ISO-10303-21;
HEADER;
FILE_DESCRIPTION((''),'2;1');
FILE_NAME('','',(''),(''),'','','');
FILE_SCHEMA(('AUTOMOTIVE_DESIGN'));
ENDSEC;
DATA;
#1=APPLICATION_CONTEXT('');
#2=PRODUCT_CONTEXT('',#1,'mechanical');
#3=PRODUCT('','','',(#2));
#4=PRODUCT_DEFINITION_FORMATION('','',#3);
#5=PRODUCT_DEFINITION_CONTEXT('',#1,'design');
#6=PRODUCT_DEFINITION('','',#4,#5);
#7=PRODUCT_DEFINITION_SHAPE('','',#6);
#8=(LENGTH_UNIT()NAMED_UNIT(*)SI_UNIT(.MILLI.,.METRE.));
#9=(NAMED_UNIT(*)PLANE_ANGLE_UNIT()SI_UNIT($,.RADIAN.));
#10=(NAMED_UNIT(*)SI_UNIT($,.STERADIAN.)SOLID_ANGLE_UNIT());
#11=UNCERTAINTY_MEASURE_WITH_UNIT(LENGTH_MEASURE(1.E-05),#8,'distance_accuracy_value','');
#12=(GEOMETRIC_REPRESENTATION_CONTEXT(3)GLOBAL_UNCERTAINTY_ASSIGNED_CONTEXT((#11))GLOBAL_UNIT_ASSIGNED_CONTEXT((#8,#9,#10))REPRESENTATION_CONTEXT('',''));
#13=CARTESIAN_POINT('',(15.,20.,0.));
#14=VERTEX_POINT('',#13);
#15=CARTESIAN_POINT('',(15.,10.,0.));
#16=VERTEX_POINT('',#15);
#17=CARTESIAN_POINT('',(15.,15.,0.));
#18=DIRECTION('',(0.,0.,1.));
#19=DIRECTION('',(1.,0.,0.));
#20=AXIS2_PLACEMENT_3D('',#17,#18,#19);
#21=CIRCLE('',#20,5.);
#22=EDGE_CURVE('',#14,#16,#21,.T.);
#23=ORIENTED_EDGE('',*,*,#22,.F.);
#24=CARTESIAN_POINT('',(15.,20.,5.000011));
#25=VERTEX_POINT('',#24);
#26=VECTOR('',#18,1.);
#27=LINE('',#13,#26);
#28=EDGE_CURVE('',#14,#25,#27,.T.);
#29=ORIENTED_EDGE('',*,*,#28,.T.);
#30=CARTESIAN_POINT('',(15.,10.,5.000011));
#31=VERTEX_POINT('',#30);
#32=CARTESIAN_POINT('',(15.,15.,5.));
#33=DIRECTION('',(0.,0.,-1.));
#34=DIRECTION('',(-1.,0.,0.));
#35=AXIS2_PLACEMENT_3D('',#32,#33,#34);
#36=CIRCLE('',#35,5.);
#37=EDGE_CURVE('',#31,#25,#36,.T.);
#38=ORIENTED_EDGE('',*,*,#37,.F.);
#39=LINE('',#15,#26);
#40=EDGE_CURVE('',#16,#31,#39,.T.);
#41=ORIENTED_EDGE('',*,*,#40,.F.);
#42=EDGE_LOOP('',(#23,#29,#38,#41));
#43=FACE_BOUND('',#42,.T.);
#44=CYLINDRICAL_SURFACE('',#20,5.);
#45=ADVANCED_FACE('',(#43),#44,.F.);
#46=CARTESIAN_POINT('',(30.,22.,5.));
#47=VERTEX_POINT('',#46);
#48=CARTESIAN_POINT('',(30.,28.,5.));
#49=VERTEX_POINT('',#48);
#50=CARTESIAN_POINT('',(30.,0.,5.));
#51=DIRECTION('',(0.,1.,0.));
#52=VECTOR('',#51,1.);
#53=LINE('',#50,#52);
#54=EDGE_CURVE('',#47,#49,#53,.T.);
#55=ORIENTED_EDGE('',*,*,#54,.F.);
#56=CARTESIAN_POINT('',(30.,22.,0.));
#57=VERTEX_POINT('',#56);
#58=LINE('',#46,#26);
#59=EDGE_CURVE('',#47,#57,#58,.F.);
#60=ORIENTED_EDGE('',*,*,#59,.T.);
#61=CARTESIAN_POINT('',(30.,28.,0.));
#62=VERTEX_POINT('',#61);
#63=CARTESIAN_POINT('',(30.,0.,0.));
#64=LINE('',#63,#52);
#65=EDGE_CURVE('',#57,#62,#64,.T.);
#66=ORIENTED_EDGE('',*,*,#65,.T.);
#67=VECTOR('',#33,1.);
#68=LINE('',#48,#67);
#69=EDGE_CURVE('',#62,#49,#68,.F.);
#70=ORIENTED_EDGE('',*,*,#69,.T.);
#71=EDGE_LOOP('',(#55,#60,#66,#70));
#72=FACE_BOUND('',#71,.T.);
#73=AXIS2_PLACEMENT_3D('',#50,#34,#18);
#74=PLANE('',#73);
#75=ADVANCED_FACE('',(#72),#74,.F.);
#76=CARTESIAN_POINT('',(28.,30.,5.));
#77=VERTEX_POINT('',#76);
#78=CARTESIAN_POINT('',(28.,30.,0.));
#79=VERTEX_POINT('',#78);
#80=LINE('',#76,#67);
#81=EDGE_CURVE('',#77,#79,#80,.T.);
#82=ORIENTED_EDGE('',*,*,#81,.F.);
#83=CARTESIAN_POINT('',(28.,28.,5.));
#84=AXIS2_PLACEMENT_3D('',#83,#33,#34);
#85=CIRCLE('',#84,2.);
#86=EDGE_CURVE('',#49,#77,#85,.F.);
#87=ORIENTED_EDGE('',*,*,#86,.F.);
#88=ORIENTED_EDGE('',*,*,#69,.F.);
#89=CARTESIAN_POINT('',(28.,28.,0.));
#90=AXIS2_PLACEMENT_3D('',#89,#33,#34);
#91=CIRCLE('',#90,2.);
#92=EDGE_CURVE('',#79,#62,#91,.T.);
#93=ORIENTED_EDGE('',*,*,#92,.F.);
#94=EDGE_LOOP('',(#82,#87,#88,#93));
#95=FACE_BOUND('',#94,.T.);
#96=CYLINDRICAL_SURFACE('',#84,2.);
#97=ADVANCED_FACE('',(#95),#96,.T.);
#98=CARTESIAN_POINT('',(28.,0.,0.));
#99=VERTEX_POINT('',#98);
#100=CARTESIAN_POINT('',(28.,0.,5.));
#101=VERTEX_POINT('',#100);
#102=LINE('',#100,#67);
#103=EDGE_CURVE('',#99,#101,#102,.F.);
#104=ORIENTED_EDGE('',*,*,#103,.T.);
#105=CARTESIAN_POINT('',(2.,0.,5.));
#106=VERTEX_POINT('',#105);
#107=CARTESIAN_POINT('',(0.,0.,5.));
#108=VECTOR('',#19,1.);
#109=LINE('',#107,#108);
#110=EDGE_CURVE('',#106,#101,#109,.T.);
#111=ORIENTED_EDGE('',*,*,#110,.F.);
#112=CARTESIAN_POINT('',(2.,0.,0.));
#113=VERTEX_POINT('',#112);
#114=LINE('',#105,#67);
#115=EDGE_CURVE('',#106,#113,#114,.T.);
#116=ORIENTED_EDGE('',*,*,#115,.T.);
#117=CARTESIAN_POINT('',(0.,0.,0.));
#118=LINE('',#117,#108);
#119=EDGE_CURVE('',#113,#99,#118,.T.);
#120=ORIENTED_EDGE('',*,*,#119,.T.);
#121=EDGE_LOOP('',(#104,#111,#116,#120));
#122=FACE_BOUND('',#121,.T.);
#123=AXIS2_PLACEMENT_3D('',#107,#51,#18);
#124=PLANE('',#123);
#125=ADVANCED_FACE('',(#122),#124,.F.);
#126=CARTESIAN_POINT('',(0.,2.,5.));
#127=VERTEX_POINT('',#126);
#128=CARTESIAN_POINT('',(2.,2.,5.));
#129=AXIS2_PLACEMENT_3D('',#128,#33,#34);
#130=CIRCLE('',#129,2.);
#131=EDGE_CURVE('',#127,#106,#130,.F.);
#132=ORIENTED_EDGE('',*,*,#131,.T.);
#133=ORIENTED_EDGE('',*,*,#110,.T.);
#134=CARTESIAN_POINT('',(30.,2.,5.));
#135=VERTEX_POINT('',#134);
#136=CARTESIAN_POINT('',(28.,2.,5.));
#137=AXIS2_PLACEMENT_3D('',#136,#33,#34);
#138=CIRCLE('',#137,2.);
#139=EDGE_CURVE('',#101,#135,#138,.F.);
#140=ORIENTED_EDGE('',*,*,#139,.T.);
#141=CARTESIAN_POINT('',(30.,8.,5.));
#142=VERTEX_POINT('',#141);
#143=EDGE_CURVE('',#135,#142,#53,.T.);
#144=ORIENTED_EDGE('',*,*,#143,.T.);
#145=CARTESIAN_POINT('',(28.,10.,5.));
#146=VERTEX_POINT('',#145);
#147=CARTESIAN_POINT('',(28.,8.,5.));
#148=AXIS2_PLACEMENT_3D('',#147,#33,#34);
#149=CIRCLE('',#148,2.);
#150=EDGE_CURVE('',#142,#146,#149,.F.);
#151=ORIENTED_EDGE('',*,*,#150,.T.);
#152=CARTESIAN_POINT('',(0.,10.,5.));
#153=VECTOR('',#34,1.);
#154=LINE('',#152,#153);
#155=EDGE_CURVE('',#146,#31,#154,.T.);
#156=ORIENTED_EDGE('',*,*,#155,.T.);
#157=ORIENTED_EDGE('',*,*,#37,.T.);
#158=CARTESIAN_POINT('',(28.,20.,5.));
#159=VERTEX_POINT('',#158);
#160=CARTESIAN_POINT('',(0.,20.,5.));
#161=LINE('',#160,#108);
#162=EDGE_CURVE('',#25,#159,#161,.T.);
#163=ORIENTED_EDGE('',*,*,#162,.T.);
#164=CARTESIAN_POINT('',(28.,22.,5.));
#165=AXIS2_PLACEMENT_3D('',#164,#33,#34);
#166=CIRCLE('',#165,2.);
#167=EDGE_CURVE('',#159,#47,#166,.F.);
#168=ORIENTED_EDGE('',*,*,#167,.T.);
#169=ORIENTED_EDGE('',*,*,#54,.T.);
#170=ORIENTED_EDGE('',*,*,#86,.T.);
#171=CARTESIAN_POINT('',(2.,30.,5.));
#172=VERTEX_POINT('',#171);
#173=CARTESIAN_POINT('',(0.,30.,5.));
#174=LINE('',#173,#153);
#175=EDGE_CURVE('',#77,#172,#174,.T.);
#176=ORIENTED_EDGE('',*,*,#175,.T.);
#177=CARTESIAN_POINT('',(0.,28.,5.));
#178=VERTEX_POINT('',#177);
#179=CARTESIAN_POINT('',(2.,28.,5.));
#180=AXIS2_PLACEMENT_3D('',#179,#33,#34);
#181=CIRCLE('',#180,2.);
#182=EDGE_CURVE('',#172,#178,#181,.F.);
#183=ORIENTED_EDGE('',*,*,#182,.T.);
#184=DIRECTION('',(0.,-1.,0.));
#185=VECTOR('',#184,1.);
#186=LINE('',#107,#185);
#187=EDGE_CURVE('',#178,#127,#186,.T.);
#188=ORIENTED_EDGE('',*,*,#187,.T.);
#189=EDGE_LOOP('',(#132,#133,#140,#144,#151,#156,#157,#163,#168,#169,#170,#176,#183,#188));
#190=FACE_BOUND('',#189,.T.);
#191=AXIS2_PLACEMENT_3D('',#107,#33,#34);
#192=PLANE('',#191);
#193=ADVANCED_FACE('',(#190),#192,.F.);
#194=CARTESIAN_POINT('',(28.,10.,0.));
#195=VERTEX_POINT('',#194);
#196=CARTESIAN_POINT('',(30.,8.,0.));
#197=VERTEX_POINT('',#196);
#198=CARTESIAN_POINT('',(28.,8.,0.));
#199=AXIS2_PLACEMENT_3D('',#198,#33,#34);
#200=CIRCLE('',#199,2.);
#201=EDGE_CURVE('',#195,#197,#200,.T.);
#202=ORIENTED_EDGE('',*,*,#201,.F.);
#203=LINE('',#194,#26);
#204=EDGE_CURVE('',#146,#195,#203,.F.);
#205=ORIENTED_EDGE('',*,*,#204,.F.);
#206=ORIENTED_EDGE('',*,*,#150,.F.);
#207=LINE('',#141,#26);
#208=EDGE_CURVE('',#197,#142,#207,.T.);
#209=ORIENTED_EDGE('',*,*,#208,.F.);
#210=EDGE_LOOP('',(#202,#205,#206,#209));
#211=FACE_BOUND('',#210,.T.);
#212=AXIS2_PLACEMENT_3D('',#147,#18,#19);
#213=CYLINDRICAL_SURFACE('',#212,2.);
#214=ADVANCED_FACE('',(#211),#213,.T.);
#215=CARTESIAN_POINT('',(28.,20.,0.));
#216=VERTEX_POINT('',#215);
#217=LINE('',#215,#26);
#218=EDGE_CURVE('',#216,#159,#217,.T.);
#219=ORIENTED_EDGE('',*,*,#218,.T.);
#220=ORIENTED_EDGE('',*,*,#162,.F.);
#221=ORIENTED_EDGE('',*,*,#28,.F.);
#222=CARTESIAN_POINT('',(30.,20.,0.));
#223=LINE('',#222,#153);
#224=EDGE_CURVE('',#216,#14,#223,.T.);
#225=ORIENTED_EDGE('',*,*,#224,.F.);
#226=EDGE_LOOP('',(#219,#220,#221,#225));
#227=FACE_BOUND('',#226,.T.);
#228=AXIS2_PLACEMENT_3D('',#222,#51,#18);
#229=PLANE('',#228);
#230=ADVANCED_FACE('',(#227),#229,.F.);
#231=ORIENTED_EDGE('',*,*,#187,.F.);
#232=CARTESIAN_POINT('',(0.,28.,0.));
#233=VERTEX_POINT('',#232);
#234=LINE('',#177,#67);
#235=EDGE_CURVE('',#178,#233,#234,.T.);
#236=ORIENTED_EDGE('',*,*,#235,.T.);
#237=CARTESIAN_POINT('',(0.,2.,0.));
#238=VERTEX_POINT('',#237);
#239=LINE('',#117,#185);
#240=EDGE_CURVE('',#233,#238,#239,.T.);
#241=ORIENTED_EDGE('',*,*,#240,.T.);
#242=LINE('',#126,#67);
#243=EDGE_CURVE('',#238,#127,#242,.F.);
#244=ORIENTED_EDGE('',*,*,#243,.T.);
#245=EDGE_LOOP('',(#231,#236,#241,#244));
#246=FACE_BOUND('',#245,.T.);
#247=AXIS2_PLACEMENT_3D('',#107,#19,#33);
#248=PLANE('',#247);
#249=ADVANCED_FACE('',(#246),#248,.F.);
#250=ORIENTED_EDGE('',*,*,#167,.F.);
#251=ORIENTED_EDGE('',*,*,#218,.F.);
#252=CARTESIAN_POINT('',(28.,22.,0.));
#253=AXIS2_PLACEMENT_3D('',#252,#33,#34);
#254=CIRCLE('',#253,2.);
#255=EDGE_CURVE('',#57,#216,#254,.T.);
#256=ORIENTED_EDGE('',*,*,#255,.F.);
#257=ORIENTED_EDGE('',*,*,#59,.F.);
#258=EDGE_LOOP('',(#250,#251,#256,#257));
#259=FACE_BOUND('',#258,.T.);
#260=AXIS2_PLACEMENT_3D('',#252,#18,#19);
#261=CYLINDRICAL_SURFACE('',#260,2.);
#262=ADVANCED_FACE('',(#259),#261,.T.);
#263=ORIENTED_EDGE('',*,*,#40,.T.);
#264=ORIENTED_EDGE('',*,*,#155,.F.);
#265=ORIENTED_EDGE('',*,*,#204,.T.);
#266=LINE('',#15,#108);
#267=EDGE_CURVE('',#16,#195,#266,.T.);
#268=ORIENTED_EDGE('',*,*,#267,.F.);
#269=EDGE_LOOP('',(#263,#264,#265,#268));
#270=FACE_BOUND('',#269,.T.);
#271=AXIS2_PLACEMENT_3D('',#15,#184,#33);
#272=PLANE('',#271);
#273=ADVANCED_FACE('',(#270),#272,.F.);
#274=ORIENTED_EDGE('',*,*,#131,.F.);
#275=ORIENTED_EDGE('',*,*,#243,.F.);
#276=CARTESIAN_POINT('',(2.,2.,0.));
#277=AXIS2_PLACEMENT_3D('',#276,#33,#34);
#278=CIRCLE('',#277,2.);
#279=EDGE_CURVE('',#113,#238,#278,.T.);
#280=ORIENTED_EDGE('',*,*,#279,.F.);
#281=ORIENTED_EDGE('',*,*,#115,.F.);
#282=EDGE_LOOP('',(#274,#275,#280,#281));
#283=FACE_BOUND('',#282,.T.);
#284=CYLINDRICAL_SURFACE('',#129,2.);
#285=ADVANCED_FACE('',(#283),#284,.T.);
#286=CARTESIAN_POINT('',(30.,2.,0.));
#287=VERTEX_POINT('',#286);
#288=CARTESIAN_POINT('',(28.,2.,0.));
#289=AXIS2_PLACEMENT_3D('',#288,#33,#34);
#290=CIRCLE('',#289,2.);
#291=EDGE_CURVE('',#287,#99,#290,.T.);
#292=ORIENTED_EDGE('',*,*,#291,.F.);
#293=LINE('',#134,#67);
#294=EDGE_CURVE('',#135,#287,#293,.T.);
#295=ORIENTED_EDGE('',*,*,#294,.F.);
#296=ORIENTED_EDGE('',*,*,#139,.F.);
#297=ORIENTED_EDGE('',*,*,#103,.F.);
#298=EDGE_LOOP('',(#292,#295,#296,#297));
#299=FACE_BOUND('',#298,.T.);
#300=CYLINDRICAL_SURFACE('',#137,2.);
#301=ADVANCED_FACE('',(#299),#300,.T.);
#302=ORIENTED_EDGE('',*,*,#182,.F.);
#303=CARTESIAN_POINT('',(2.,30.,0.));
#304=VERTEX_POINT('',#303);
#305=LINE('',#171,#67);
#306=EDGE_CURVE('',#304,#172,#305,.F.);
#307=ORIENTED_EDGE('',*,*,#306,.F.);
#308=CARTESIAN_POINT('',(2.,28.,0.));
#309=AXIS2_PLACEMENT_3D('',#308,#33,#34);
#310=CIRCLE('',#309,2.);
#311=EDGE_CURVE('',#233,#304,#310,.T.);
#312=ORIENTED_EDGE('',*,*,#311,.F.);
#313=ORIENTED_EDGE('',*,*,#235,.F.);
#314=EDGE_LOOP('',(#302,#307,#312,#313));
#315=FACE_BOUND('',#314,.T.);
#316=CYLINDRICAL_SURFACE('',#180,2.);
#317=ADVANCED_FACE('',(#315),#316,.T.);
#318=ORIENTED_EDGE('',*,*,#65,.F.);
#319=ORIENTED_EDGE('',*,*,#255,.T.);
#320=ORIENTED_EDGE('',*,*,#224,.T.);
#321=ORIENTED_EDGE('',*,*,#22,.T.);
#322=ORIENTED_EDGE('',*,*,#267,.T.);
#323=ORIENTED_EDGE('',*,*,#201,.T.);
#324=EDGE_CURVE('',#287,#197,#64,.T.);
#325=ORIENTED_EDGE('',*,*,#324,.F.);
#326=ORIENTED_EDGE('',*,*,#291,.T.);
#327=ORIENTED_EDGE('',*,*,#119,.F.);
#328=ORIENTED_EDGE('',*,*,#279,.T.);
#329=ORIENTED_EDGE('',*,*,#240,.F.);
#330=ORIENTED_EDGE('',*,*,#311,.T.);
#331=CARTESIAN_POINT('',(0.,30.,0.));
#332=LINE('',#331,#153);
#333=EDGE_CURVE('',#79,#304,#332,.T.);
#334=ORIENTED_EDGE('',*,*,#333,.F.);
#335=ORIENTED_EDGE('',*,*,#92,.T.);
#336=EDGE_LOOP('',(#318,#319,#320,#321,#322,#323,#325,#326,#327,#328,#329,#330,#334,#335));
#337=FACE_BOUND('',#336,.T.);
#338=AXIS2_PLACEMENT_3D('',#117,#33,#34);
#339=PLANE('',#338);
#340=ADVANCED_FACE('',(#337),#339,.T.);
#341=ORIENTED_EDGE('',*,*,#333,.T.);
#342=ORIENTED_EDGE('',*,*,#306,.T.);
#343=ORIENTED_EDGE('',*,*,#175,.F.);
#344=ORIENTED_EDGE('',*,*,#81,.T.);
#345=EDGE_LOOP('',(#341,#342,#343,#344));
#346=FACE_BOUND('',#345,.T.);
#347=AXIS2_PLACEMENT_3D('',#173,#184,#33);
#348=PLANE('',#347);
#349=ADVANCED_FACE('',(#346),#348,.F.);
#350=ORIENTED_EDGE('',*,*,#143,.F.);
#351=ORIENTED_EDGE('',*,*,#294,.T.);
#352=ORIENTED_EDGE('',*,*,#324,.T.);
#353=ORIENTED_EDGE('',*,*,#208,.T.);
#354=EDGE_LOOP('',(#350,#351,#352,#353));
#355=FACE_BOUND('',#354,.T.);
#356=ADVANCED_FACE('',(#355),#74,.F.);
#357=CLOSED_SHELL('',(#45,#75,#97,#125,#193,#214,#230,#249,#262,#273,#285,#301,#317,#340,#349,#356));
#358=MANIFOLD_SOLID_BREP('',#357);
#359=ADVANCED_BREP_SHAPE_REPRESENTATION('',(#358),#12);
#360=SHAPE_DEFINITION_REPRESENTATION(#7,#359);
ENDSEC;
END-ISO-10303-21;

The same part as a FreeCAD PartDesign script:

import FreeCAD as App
import Part
import Sketcher


def edges_at(feature, points):
    """Names of the edges that pass closest to the given points."""
    edges = feature.Shape.Edges
    near = lambda p: min(range(len(edges)), key=lambda i: edges[i].distToShape(Part.Vertex(*p))[0])
    return sorted({f"Edge{near(p) + 1}" for p in points})

doc = App.newDocument("Part")
body = doc.addObject("PartDesign::Body", "Body")

# Sketch on XY plane
sketch1 = body.newObject("Sketcher::SketchObject", "Sketch")
sketch1.AttachmentSupport = (doc.getObject("XY_Plane"), [""])
sketch1.MapMode = "FlatFace"
sketch1.addGeometry(Part.LineSegment(App.Vector(0, 30, 0), App.Vector(0, 0, 0)), False)
sketch1.addGeometry(Part.LineSegment(App.Vector(0, 0, 0), App.Vector(30, 0, 0)), False)
sketch1.addGeometry(Part.LineSegment(App.Vector(30, 0, 0), App.Vector(30, 30, 0)), False)
sketch1.addGeometry(Part.LineSegment(App.Vector(30, 30, 0), App.Vector(0, 30, 0)), False)
sketch1.addConstraint(Sketcher.Constraint("Coincident", 0, 2, 1, 1))
sketch1.addConstraint(Sketcher.Constraint("Coincident", 1, 2, 2, 1))
sketch1.addConstraint(Sketcher.Constraint("Coincident", 2, 2, 3, 1))
sketch1.addConstraint(Sketcher.Constraint("Coincident", 3, 2, 0, 1))
sketch1.addConstraint(Sketcher.Constraint("Vertical", 0))
sketch1.addConstraint(Sketcher.Constraint("Horizontal", 1))
sketch1.addConstraint(Sketcher.Constraint("Vertical", 2))
sketch1.addConstraint(Sketcher.Constraint("Horizontal", 3))
sketch1.addConstraint(Sketcher.Constraint("Coincident", 0, 2, -1, 1))
sketch1.addConstraint(Sketcher.Constraint("Equal", 3, 0))
sketch1.addConstraint(Sketcher.Constraint("DistanceX", 1, 1, 1, 2, 30.0))
pad1 = body.newObject("PartDesign::Pad", "Pad")
pad1.Profile = sketch1
pad1.Length = 5

# Sketch on XY plane
sketch2 = body.newObject("Sketcher::SketchObject", "Sketch001")
sketch2.AttachmentSupport = (doc.getObject("XY_Plane"), [""])
sketch2.MapMode = "FlatFace"
sketch2.AttachmentOffset = App.Placement(App.Vector(0, 0, 5), App.Rotation())
sketch2.addGeometry(Part.Circle(App.Vector(15, 15, 0), App.Vector(0, 0, 1), 5), False)
sketch2.addConstraint(Sketcher.Constraint("Diameter", 0, 10.0))
sketch2.addConstraint(Sketcher.Constraint("DistanceX", -1, 1, 0, 3, 15.0))
sketch2.addConstraint(Sketcher.Constraint("DistanceY", -1, 1, 0, 3, 15.0))
pocket1 = body.newObject("PartDesign::Pocket", "Pocket")
pocket1.Profile = sketch2
pocket1.Type = "ThroughAll"
pocket1.Midplane = True

# Sketch on XY plane
sketch3 = body.newObject("Sketcher::SketchObject", "Sketch002")
sketch3.AttachmentSupport = (doc.getObject("XY_Plane"), [""])
sketch3.MapMode = "FlatFace"
sketch3.AttachmentOffset = App.Placement(App.Vector(0, 0, 5), App.Rotation())
sketch3.addGeometry(Part.LineSegment(App.Vector(15, 20, 0), App.Vector(15, 10, 0)), False)
sketch3.addGeometry(Part.LineSegment(App.Vector(15, 10, 0), App.Vector(30, 10, 0)), False)
sketch3.addGeometry(Part.LineSegment(App.Vector(30, 10, 0), App.Vector(30, 20, 0)), False)
sketch3.addGeometry(Part.LineSegment(App.Vector(30, 20, 0), App.Vector(15, 20, 0)), False)
sketch3.addConstraint(Sketcher.Constraint("Coincident", 0, 2, 1, 1))
sketch3.addConstraint(Sketcher.Constraint("Coincident", 1, 2, 2, 1))
sketch3.addConstraint(Sketcher.Constraint("Coincident", 2, 2, 3, 1))
sketch3.addConstraint(Sketcher.Constraint("Coincident", 3, 2, 0, 1))
sketch3.addConstraint(Sketcher.Constraint("Vertical", 0))
sketch3.addConstraint(Sketcher.Constraint("Horizontal", 1))
sketch3.addConstraint(Sketcher.Constraint("Vertical", 2))
sketch3.addConstraint(Sketcher.Constraint("Horizontal", 3))
sketch3.addConstraint(Sketcher.Constraint("DistanceX", 1, 1, 1, 2, 15.0))
sketch3.addConstraint(Sketcher.Constraint("DistanceY", 0, 2, 0, 1, 10.0))
sketch3.addConstraint(Sketcher.Constraint("DistanceX", -1, 1, 0, 2, 15.0))
sketch3.addConstraint(Sketcher.Constraint("DistanceY", -1, 1, 0, 2, 10.0))
pocket2 = body.newObject("PartDesign::Pocket", "Pocket001")
pocket2.Profile = sketch3
pocket2.Type = "ThroughAll"
pocket2.Midplane = True
doc.recompute()

fillet = body.newObject("PartDesign::Fillet", "Fillet")
fillet.Base = (pocket2, edges_at(pocket2, [
    (30, 10, 2.5),
    (30, 20, 2.5),
    (30, 30, 2.5),
    (30, 0, 2.5),
    (0, 0, 2.5),
    (0, 30, 2.5),
]))
fillet.Radius = 2

doc.recompute()
